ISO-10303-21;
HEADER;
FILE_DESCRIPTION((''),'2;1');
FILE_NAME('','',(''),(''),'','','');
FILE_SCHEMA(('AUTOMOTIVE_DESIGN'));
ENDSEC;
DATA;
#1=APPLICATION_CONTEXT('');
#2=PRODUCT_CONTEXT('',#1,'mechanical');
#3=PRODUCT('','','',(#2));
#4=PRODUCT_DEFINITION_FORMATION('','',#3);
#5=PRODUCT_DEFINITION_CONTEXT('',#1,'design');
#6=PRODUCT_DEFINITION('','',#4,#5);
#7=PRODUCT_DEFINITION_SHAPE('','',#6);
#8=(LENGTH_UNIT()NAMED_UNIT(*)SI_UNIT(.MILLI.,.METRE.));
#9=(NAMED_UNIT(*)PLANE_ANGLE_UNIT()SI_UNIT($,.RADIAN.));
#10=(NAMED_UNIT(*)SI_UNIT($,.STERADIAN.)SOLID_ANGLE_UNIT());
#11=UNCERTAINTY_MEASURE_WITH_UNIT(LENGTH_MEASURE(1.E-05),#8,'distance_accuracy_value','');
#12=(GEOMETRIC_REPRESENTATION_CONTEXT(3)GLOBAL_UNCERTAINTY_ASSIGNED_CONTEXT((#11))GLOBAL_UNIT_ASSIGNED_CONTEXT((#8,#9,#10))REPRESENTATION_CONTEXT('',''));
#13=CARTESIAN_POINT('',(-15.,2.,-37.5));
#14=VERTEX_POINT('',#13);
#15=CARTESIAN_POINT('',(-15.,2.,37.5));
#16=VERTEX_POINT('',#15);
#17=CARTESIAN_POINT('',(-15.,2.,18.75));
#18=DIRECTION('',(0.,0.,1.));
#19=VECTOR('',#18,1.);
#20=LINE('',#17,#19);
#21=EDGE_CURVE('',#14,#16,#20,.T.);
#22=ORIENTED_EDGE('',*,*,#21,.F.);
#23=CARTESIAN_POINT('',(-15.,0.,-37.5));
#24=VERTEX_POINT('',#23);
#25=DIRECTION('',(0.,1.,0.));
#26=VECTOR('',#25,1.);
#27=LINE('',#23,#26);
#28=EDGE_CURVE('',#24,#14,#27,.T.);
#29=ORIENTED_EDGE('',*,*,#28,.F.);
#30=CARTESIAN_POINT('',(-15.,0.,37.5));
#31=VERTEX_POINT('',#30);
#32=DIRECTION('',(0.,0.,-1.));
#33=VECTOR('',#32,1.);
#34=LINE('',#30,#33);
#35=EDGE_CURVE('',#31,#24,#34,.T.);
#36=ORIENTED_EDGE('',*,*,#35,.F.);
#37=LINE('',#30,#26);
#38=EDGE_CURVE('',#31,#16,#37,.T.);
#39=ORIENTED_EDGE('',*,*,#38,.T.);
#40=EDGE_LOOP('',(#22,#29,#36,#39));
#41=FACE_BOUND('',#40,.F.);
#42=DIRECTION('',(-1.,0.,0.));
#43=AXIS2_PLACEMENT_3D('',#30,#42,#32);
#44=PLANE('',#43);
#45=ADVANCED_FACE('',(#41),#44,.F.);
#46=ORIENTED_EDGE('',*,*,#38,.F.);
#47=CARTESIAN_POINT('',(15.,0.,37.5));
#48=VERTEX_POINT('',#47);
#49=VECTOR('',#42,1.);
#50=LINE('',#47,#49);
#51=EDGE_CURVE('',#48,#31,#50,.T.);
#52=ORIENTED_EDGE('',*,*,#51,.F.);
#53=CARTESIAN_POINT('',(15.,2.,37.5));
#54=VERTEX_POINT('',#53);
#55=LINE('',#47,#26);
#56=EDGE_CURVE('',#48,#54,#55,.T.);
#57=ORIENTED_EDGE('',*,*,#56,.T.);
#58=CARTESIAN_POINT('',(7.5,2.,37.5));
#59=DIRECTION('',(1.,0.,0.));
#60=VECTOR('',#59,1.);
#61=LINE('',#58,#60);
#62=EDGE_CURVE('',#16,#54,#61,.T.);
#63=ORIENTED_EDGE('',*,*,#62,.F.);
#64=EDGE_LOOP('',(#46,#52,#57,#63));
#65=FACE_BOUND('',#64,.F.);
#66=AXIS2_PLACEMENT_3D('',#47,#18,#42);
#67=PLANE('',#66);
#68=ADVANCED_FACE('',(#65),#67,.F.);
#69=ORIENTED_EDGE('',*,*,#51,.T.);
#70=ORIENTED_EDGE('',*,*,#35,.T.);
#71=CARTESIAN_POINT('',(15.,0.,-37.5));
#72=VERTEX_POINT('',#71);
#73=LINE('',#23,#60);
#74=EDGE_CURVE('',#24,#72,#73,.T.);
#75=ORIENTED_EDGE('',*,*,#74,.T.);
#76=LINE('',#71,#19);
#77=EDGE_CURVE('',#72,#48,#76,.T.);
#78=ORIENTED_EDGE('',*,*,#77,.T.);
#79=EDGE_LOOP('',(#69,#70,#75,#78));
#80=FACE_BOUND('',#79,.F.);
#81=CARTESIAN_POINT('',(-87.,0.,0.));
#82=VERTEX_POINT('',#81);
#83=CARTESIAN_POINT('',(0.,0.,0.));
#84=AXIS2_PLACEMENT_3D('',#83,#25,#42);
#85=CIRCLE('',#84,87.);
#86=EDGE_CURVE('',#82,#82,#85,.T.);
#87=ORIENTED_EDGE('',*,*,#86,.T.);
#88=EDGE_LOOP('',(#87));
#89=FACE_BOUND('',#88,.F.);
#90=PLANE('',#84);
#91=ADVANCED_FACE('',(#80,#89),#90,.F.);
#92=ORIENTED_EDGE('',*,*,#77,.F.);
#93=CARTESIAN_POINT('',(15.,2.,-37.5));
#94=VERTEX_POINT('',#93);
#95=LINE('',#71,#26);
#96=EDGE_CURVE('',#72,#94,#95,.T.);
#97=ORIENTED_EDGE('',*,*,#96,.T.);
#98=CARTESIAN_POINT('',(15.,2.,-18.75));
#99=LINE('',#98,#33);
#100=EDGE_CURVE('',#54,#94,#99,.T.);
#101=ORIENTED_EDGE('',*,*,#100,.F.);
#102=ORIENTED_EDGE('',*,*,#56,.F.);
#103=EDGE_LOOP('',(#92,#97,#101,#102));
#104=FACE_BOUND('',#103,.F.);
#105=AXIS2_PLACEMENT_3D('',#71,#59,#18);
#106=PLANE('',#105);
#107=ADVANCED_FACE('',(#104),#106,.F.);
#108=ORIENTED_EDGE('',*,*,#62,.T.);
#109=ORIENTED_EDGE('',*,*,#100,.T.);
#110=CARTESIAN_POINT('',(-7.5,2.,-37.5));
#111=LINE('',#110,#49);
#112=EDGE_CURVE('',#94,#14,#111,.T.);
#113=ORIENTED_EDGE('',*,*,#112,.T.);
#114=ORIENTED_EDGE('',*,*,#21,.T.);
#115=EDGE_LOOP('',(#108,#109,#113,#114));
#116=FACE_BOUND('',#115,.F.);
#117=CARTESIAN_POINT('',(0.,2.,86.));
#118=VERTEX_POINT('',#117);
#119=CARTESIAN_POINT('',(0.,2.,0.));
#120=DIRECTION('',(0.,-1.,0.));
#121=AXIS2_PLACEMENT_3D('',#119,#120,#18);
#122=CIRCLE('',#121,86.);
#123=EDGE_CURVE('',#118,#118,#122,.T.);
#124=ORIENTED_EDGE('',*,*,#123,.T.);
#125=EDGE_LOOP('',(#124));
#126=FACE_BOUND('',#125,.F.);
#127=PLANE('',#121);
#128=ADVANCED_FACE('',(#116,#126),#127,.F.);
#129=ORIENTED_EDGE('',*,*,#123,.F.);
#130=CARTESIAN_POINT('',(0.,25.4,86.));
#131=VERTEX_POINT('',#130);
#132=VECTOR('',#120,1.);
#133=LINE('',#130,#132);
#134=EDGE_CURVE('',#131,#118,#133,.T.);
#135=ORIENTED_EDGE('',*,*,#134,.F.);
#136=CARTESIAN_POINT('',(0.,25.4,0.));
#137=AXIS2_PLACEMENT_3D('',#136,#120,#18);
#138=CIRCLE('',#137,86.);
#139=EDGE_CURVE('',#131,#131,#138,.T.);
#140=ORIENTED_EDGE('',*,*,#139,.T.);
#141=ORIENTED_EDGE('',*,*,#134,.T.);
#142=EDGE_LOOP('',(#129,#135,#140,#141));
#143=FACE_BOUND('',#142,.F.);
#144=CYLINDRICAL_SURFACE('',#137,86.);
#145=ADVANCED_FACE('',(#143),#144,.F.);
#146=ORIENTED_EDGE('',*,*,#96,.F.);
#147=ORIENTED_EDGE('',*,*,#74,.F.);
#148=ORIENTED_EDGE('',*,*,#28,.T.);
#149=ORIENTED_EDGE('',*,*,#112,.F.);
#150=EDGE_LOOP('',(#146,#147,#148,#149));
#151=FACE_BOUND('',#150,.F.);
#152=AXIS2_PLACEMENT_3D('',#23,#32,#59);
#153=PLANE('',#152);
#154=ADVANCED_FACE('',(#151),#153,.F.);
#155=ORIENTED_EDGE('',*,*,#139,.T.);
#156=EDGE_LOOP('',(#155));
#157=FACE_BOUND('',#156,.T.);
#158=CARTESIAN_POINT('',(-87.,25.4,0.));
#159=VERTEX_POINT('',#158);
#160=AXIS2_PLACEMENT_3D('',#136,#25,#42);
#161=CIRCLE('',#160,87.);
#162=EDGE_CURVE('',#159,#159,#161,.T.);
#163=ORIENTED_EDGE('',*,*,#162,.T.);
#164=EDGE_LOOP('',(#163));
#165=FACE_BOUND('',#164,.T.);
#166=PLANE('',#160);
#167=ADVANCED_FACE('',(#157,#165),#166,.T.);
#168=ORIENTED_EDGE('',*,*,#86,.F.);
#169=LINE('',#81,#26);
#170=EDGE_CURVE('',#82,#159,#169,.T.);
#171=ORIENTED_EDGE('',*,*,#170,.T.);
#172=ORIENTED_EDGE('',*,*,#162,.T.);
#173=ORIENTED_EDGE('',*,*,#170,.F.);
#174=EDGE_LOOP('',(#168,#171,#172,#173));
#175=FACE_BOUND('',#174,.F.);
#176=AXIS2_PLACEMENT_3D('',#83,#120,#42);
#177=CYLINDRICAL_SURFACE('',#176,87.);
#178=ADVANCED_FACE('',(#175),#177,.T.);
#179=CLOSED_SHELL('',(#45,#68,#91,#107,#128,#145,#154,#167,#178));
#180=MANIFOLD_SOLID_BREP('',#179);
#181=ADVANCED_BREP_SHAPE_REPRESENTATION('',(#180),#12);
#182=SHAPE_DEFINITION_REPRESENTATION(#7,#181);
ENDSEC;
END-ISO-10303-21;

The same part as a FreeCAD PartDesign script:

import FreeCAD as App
import Part
import Sketcher
from FreeCAD import Vector
Q = App.Units.Quantity


def add_polygon(sketch, points):
    """Adds a closed chain of lines whose ends are joined by coincident constraints."""
    first, n = sketch.GeometryCount, len(points)
    for a, b in zip(points, points[1:] + points[:1]):
        sketch.addGeometry(Part.LineSegment(App.Vector(*a, 0), App.Vector(*b, 0)), False)
    for i in range(n):
        sketch.addConstraint(Sketcher.Constraint("Coincident", first + i, 2, first + (i + 1) % n, 1))

doc = App.newDocument("Part")
body = doc.addObject("PartDesign::Body", "Body")

sketch1 = body.newObject("Sketcher::SketchObject", "Sketch")
sketch1.AttachmentSupport = (doc.getObject("XZ_Plane"), [""])
sketch1.MapMode = "FlatFace"
sketch1.addGeometry(Part.Circle(Vector(0, 0, 0), Vector(0, 0, 1), 87), False)
add_polygon(sketch1, [(15, -38), (15, 38), (-15, 38), (-15, -38)])
sketch1.addConstraint([
    Sketcher.Constraint("Vertical", 1),
    Sketcher.Constraint("Horizontal", 2),
    Sketcher.Constraint("Vertical", 3),
    Sketcher.Constraint("Horizontal", 4),
    Sketcher.Constraint("Coincident", 0, 3, -1, 1),
    Sketcher.Constraint("Symmetric", 1, 2, 3, 2, -1, 1),
    Sketcher.Constraint("Diameter", 0, Q("174 mm")),
    Sketcher.Constraint("DistanceX", 2, 2, 2, 1, Q("30 mm")),
    Sketcher.Constraint("DistanceY", 1, 1, 1, 2, Q("75 mm")),
])
pad1 = body.newObject("PartDesign::Pad", "Pad")
pad1.Profile = sketch1
pad1.Length = 25.4
pad1.Reversed = True

sketch2 = body.newObject("Sketcher::SketchObject", "Sketch001")
sketch2.AttachmentSupport = (doc.getObject("XZ_Plane"), [""])
sketch2.MapMode = "FlatFace"
sketch2.AttachmentOffset = App.Placement(Vector(0, 0, -25.4), App.Rotation())
sketch2.addGeometry(Part.Circle(Vector(0, 0, 0), Vector(0, 0, 1), 86), False)
sketch2.addConstraint([
    Sketcher.Constraint("Coincident", 0, 3, -1, 1),
    Sketcher.Constraint("Diameter", 0, Q("172 mm")),
])
doc.recompute()
hole = body.newObject("PartDesign::Hole", "Hole")
hole.Profile = sketch2
hole.ThreadType = "None"
hole.Diameter = 172
hole.DepthType = "Dimension"
hole.Depth = 23.4
hole.DrillPoint = "Flat"
hole.Reversed = True

doc.recompute()
